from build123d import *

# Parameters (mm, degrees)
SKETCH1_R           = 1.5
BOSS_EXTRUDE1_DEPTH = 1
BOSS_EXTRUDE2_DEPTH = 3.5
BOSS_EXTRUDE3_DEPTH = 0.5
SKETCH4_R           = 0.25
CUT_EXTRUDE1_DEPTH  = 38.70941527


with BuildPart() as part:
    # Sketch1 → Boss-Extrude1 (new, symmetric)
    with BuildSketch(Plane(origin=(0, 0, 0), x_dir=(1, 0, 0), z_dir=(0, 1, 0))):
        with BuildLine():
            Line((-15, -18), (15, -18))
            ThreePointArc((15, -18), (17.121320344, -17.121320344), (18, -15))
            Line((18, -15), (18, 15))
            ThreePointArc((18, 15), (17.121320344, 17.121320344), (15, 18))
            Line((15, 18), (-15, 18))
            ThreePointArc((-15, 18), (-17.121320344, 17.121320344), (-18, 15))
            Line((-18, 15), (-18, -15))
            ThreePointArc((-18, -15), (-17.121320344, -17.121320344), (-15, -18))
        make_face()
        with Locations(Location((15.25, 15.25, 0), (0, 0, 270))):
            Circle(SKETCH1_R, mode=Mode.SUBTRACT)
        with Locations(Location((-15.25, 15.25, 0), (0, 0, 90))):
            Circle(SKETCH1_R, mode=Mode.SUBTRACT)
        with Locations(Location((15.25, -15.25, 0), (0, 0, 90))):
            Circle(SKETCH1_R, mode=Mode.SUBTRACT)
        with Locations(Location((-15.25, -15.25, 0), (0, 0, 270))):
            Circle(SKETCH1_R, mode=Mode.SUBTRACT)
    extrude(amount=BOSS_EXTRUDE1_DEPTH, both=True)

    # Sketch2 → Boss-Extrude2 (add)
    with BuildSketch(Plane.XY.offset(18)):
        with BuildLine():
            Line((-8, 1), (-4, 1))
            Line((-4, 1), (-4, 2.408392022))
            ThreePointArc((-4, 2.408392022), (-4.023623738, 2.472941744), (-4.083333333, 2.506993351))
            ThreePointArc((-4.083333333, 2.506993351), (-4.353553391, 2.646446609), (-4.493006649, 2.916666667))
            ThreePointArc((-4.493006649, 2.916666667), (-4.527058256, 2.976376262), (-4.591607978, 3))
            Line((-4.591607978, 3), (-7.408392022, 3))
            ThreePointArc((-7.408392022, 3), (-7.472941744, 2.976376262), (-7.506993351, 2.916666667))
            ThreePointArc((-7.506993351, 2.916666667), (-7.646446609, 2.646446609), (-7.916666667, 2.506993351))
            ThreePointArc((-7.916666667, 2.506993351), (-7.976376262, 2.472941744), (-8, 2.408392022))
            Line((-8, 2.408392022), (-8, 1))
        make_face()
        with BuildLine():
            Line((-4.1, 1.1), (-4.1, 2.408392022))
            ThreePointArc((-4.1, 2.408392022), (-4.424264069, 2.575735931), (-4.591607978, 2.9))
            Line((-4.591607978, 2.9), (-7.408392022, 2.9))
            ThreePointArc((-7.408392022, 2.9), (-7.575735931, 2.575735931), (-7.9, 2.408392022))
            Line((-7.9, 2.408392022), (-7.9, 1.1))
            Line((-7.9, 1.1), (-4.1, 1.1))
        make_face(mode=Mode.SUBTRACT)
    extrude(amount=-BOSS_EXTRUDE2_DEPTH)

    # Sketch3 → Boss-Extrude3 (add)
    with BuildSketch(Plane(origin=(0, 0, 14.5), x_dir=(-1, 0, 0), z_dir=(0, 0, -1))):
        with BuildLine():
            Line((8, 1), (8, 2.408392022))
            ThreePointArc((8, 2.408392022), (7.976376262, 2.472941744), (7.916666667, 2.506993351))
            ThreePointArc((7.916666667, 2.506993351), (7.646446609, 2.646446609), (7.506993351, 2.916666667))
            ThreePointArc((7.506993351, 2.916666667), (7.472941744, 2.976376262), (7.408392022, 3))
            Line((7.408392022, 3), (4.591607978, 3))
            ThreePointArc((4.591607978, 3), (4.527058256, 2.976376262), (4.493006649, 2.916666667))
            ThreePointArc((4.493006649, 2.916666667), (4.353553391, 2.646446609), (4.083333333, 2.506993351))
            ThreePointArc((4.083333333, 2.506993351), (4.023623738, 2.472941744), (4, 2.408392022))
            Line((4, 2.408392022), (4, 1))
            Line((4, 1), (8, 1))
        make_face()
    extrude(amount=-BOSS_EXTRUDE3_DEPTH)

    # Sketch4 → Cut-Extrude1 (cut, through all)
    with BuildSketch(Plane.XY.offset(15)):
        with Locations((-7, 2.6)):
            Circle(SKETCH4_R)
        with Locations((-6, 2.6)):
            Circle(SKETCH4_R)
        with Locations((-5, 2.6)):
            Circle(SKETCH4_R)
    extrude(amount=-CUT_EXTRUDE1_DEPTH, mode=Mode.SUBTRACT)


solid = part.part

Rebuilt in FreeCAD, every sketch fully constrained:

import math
import FreeCAD as App
import Part
import Sketcher

V = App.Vector
Q = App.Units.Quantity

doc = App.newDocument("Part")
params = doc.addObject("Spreadsheet::Sheet", "Params")
for row, (alias, value) in enumerate([
    ("sketch1_diameter", "3 mm"),
    ("sketch1_radius", "3 mm"),
    ("sketch1_width", "30 mm"),
    ("pad1_length", "2 mm"),
    ("sketch2_radius", "0.1 mm"),
    ("sketch2_radius2", "0.5 mm"),
    ("sketch2_width", "4 mm"),
    ("pad2_length", "3.5 mm"),
    ("sketch3_radius", "0.1 mm"),
    ("sketch3_radius2", "0.5 mm"),
    ("sketch3_width", "4 mm"),
    ("pad3_length", "0.5 mm"),
    ("sketch4_diameter", "0.5 mm"),
], start=1):
    params.set(f"A{row}", alias)
    params.set(f"B{row}", "=" + value)
    params.setAlias(f"B{row}", alias)

body = doc.addObject("PartDesign::Body", "Body")

# Sketch on XZ plane
sketch1 = doc.addObject("Sketcher::SketchObject", "Sketch")
body.addObject(sketch1)
sketch1.AttachmentSupport = (doc.XZ_Plane, [""])
sketch1.MapMode = "FlatFace"
sketch1.addGeometry([
    Part.LineSegment(V(-15, 18, 0), V(15, 18, 0)),  # 0
    Part.ArcOfCircle(Part.Circle(V(15, 15, 0), V(0, 0, 1), 3), math.radians(0), math.radians(90)),  # 1
    Part.LineSegment(V(18, 15, 0), V(18, -15, 0)),  # 2
    Part.ArcOfCircle(Part.Circle(V(15, -15, 0), V(0, 0, 1), 3), math.radians(-90), math.radians(0)),  # 3
    Part.LineSegment(V(15, -18, 0), V(-15, -18, 0)),  # 4
    Part.ArcOfCircle(Part.Circle(V(-15, -15, 0), V(0, 0, 1), 3), math.radians(180), math.radians(270)),  # 5
    Part.LineSegment(V(-18, -15, 0), V(-18, 15, 0)),  # 6
    Part.ArcOfCircle(Part.Circle(V(-15, 15, 0), V(0, 0, 1), 3), math.radians(90), math.radians(180)),  # 7
    Part.Circle(V(-15.2, 15.2, 0), V(0, 0, 1), 1.5),  # 8
    Part.Circle(V(15.2, 15.2, 0), V(0, 0, 1), 1.5),  # 9
    Part.Circle(V(-15.2, -15.2, 0), V(0, 0, 1), 1.5),  # 10
    Part.Circle(V(15.2, -15.2, 0), V(0, 0, 1), 1.5),  # 11
], False)
sketch1.addConstraint([
    Sketcher.Constraint("Tangent", 0, 2, 1, 2),
    Sketcher.Constraint("Tangent", 1, 1, 2, 1),
    Sketcher.Constraint("Tangent", 2, 2, 3, 2),
    Sketcher.Constraint("Tangent", 3, 1, 4, 1),
    Sketcher.Constraint("Tangent", 4, 2, 5, 2),
    Sketcher.Constraint("Tangent", 5, 1, 6, 1),
    Sketcher.Constraint("Tangent", 6, 2, 7, 2),
    Sketcher.Constraint("Tangent", 7, 1, 0, 1),
    Sketcher.Constraint("Horizontal", 0),
    Sketcher.Constraint("Vertical", 2),
    Sketcher.Constraint("Horizontal", 4),
    Sketcher.Constraint("Vertical", 6),
    Sketcher.Constraint("Equal", 1, 3),
    Sketcher.Constraint("Equal", 3, 5),
    Sketcher.Constraint("Equal", 5, 7),
    Sketcher.Constraint("Equal", 8, 9),
    Sketcher.Constraint("Equal", 9, 10),
    Sketcher.Constraint("Equal", 10, 11),
    Sketcher.Constraint("Symmetric", 1, 3, 5, 3, -1, 1),
    Sketcher.Constraint("Symmetric", 9, 3, 10, 3, -1, 1),
    Sketcher.Constraint("Symmetric", 8, 3, 11, 3, -1, 1),
    Sketcher.Constraint("Symmetric", 8, 3, 9, 3, -2),
    Sketcher.Constraint("Equal", 4, 2),
    Sketcher.Constraint("Diameter", 8, Q("3 mm")),
    Sketcher.Constraint("Radius", 1, Q("3 mm")),
    Sketcher.Constraint("DistanceX", 0, 1, 0, 2, Q("30 mm")),
    Sketcher.Constraint("DistanceX", 8, 3, 9, 3, Q("30.5 mm")),
    Sketcher.Constraint("DistanceY", 10, 3, 8, 3, Q("30.5 mm")),
])
sketch1.setExpression("Constraints[23]", "Params.sketch1_diameter")
sketch1.setExpression("Constraints[24]", "Params.sketch1_radius")
sketch1.setExpression("Constraints[25]", "Params.sketch1_width")
pad1 = doc.addObject("PartDesign::Pad", "Pad")
body.addObject(pad1)
pad1.Profile = sketch1
pad1.setExpression("Length", "Params.pad1_length")
pad1.Midplane = True

# Sketch on XY plane
sketch2 = doc.addObject("Sketcher::SketchObject", "Sketch001")
body.addObject(sketch2)
sketch2.AttachmentSupport = (doc.XY_Plane, [""])
sketch2.MapMode = "FlatFace"
sketch2.AttachmentOffset = App.Placement(V(0, 0, 18), App.Rotation())
sketch2.addGeometry([
    Part.LineSegment(V(-8, 1, 0), V(-4, 1, 0)),  # 0
    Part.LineSegment(V(-4, 1, 0), V(-4, 2.41, 0)),  # 1
    Part.ArcOfCircle(Part.Circle(V(-4.1, 2.41, 0), V(0, 0, 1), 0.1), math.radians(0), math.radians(80)),  # 2
    Part.ArcOfCircle(Part.Circle(V(-4, 3, 0), V(0, 0, 1), 0.5), math.radians(-170), math.radians(-100)),  # 3
    Part.ArcOfCircle(Part.Circle(V(-4.59, 2.9, 0), V(0, 0, 1), 0.1), math.radians(10), math.radians(90)),  # 4
    Part.LineSegment(V(-4.59, 3, 0), V(-7.41, 3, 0)),  # 5
    Part.ArcOfCircle(Part.Circle(V(-7.41, 2.9, 0), V(0, 0, 1), 0.1), math.radians(90), math.radians(170)),  # 6
    Part.ArcOfCircle(Part.Circle(V(-8, 3, 0), V(0, 0, 1), 0.5), math.radians(-80), math.radians(-10)),  # 7
    Part.ArcOfCircle(Part.Circle(V(-7.9, 2.41, 0), V(0, 0, 1), 0.1), math.radians(100), math.radians(180)),  # 8
    Part.LineSegment(V(-8, 2.41, 0), V(-8, 1, 0)),  # 9
    Part.LineSegment(V(-4.1, 2.41, 0), V(-4.1, 1.1, 0)),  # 10
    Part.LineSegment(V(-4.1, 1.1, 0), V(-7.9, 1.1, 0)),  # 11
    Part.LineSegment(V(-7.9, 1.1, 0), V(-7.9, 2.41, 0)),  # 12
    Part.ArcOfCircle(Part.Circle(V(-8, 3, 0), V(0, 0, 1), 0.6), math.radians(-80), math.radians(-10)),  # 13
    Part.LineSegment(V(-7.41, 2.9, 0), V(-4.59, 2.9, 0)),  # 14
    Part.ArcOfCircle(Part.Circle(V(-4, 3, 0), V(0, 0, 1), 0.6), math.radians(-170), math.radians(-100)),  # 15
], False)
sketch2.addConstraint([
    Sketcher.Constraint("Coincident", 0, 2, 1, 1),
    Sketcher.Constraint("Tangent", 1, 2, 2, 1),
    Sketcher.Constraint("Tangent", 2, 2, 3, 2),
    Sketcher.Constraint("Tangent", 3, 1, 4, 1),
    Sketcher.Constraint("Tangent", 4, 2, 5, 1),
    Sketcher.Constraint("Tangent", 5, 2, 6, 1),
    Sketcher.Constraint("Tangent", 6, 2, 7, 2),
    Sketcher.Constraint("Tangent", 7, 1, 8, 1),
    Sketcher.Constraint("Tangent", 8, 2, 9, 1),
    Sketcher.Constraint("Coincident", 9, 2, 0, 1),
    Sketcher.Constraint("Coincident", 10, 2, 11, 1),
    Sketcher.Constraint("Coincident", 11, 2, 12, 1),
    Sketcher.Constraint("Coincident", 12, 2, 13, 1),
    Sketcher.Constraint("Coincident", 13, 2, 14, 1),
    Sketcher.Constraint("Coincident", 14, 2, 15, 1),
    Sketcher.Constraint("Coincident", 15, 2, 10, 1),
    Sketcher.Constraint("Horizontal", 0),
    Sketcher.Constraint("Vertical", 1),
    Sketcher.Constraint("Horizontal", 5),
    Sketcher.Constraint("Vertical", 9),
    Sketcher.Constraint("Vertical", 10),
    Sketcher.Constraint("Horizontal", 11),
    Sketcher.Constraint("Vertical", 12),
    Sketcher.Constraint("Horizontal", 14),
    Sketcher.Constraint("Coincident", 13, 3, 7, 3),
    Sketcher.Constraint("Coincident", 15, 3, 3, 3),
    Sketcher.Constraint("Coincident", 12, 2, 8, 3),
    Sketcher.Constraint("Coincident", 13, 2, 6, 3),
    Sketcher.Constraint("Coincident", 14, 2, 4, 3),
    Sketcher.Constraint("Coincident", 15, 2, 2, 3),
    Sketcher.Constraint("Equal", 3, 7),
    Sketcher.Constraint("Horizontal", 3, 3, 7, 3),
    Sketcher.Constraint("Horizontal", 2, 3, 8, 3),
    Sketcher.Constraint("Horizontal", 15, 3, 4, 2),
    Sketcher.Constraint("Vertical", 15, 3, 0, 2),
    Sketcher.Constraint("Radius", 2, Q("0.1 mm")),
    Sketcher.Constraint("Radius", 3, Q("0.5 mm")),
    Sketcher.Constraint("DistanceX", 0, 1, 0, 2, Q("4 mm")),
    Sketcher.Constraint("DistanceX", 3, 3, -1, 1, Q("4 mm")),
    Sketcher.Constraint("DistanceY", -1, 1, 3, 3, Q("3 mm")),
    Sketcher.Constraint("DistanceY", -1, 1, 0, 2, Q("1 mm")),
    Sketcher.Constraint("DistanceY", -1, 1, 10, 2, Q("1.1 mm")),
])
sketch2.setExpression("Constraints[35]", "Params.sketch2_radius")
sketch2.setExpression("Constraints[36]", "Params.sketch2_radius2")
sketch2.setExpression("Constraints[37]", "Params.sketch2_width")
pad2 = doc.addObject("PartDesign::Pad", "Pad001")
body.addObject(pad2)
pad2.Profile = sketch2
pad2.setExpression("Length", "Params.pad2_length")
pad2.Reversed = True

# Sketch on XY plane
sketch3 = doc.addObject("Sketcher::SketchObject", "Sketch002")
body.addObject(sketch3)
sketch3.AttachmentSupport = (doc.XY_Plane, [""])
sketch3.MapMode = "FlatFace"
sketch3.AttachmentOffset = App.Placement(V(0, 0, 14.5), App.Rotation())
sketch3.addGeometry([
    Part.LineSegment(V(-8, 1, 0), V(-8, 2.41, 0)),  # 0
    Part.ArcOfCircle(Part.Circle(V(-7.9, 2.41, 0), V(0, 0, 1), 0.1), math.radians(100), math.radians(180)),  # 1
    Part.ArcOfCircle(Part.Circle(V(-8, 3, 0), V(0, 0, 1), 0.5), math.radians(-80), math.radians(-10)),  # 2
    Part.ArcOfCircle(Part.Circle(V(-7.41, 2.9, 0), V(0, 0, 1), 0.1), math.radians(90), math.radians(170)),  # 3
    Part.LineSegment(V(-7.41, 3, 0), V(-4.59, 3, 0)),  # 4
    Part.ArcOfCircle(Part.Circle(V(-4.59, 2.9, 0), V(0, 0, 1), 0.1), math.radians(10), math.radians(90)),  # 5
    Part.ArcOfCircle(Part.Circle(V(-4, 3, 0), V(0, 0, 1), 0.5), math.radians(-170), math.radians(-100)),  # 6
    Part.ArcOfCircle(Part.Circle(V(-4.1, 2.41, 0), V(0, 0, 1), 0.1), math.radians(0), math.radians(80)),  # 7
    Part.LineSegment(V(-4, 2.41, 0), V(-4, 1, 0)),  # 8
    Part.LineSegment(V(-4, 1, 0), V(-8, 1, 0)),  # 9
], False)
sketch3.addConstraint([
    Sketcher.Constraint("Tangent", 0, 2, 1, 2),
    Sketcher.Constraint("Tangent", 1, 1, 2, 1),
    Sketcher.Constraint("Tangent", 2, 2, 3, 2),
    Sketcher.Constraint("Tangent", 3, 1, 4, 1),
    Sketcher.Constraint("Tangent", 4, 2, 5, 2),
    Sketcher.Constraint("Tangent", 5, 1, 6, 1),
    Sketcher.Constraint("Tangent", 6, 2, 7, 2),
    Sketcher.Constraint("Tangent", 7, 1, 8, 1),
    Sketcher.Constraint("Coincident", 8, 2, 9, 1),
    Sketcher.Constraint("Coincident", 9, 2, 0, 1),
    Sketcher.Constraint("Vertical", 0),
    Sketcher.Constraint("Horizontal", 4),
    Sketcher.Constraint("Vertical", 8),
    Sketcher.Constraint("Horizontal", 9),
    Sketcher.Constraint("Equal", 1, 3),
    Sketcher.Constraint("Equal", 3, 5),
    Sketcher.Constraint("Equal", 2, 6),
    Sketcher.Constraint("Equal", 5, 7),
    Sketcher.Constraint("Horizontal", 2, 3, 6, 3),
    Sketcher.Constraint("Horizontal", 1, 3, 7, 3),
    Sketcher.Constraint("Horizontal", 6, 3, 3, 1),
    Sketcher.Constraint("Vertical", 2, 3, 0, 2),
    Sketcher.Constraint("Radius", 1, Q("0.1 mm")),
    Sketcher.Constraint("Radius", 2, Q("0.5 mm")),
    Sketcher.Constraint("DistanceX", 9, 2, 9, 1, Q("4 mm")),
    Sketcher.Constraint("DistanceX", 2, 3, -1, 1, Q("8 mm")),
    Sketcher.Constraint("DistanceY", -1, 1, 2, 3, Q("3 mm")),
    Sketcher.Constraint("DistanceY", -1, 1, 8, 2, Q("1 mm")),
])
sketch3.setExpression("Constraints[22]", "Params.sketch3_radius")
sketch3.setExpression("Constraints[23]", "Params.sketch3_radius2")
sketch3.setExpression("Constraints[24]", "Params.sketch3_width")
pad3 = doc.addObject("PartDesign::Pad", "Pad002")
body.addObject(pad3)
pad3.Profile = sketch3
pad3.setExpression("Length", "Params.pad3_length")

# Sketch on XY plane
sketch4 = doc.addObject("Sketcher::SketchObject", "Sketch003")
body.addObject(sketch4)
sketch4.AttachmentSupport = (doc.XY_Plane, [""])
sketch4.MapMode = "FlatFace"
sketch4.AttachmentOffset = App.Placement(V(0, 0, 15), App.Rotation())
sketch4.addGeometry([
    Part.Circle(V(-7, 2.6, 0), V(0, 0, 1), 0.25),
    Part.Circle(V(-6, 2.6, 0), V(0, 0, 1), 0.25),
    Part.Circle(V(-5, 2.6, 0), V(0, 0, 1), 0.25),
], False)
sketch4.addConstraint([
    Sketcher.Constraint("Equal", 0, 1),
    Sketcher.Constraint("Equal", 1, 2),
    Sketcher.Constraint("Horizontal", 0, 3, 1, 3),
    Sketcher.Constraint("Horizontal", 1, 3, 2, 3),
    Sketcher.Constraint("Diameter", 0, Q("0.5 mm")),
    Sketcher.Constraint("DistanceX", 0, 3, -1, 1, Q("7 mm")),
    Sketcher.Constraint("DistanceX", 1, 3, -1, 1, Q("6 mm")),
    Sketcher.Constraint("DistanceX", 2, 3, -1, 1, Q("5 mm")),
    Sketcher.Constraint("DistanceY", -1, 1, 0, 3, Q("2.6 mm")),
])
sketch4.setExpression("Constraints[4]", "Params.sketch4_diameter")
pocket1 = doc.addObject("PartDesign::Pocket", "Pocket")
body.addObject(pocket1)
pocket1.Profile = sketch4
pocket1.Type = "ThroughAll"

doc.recompute()
